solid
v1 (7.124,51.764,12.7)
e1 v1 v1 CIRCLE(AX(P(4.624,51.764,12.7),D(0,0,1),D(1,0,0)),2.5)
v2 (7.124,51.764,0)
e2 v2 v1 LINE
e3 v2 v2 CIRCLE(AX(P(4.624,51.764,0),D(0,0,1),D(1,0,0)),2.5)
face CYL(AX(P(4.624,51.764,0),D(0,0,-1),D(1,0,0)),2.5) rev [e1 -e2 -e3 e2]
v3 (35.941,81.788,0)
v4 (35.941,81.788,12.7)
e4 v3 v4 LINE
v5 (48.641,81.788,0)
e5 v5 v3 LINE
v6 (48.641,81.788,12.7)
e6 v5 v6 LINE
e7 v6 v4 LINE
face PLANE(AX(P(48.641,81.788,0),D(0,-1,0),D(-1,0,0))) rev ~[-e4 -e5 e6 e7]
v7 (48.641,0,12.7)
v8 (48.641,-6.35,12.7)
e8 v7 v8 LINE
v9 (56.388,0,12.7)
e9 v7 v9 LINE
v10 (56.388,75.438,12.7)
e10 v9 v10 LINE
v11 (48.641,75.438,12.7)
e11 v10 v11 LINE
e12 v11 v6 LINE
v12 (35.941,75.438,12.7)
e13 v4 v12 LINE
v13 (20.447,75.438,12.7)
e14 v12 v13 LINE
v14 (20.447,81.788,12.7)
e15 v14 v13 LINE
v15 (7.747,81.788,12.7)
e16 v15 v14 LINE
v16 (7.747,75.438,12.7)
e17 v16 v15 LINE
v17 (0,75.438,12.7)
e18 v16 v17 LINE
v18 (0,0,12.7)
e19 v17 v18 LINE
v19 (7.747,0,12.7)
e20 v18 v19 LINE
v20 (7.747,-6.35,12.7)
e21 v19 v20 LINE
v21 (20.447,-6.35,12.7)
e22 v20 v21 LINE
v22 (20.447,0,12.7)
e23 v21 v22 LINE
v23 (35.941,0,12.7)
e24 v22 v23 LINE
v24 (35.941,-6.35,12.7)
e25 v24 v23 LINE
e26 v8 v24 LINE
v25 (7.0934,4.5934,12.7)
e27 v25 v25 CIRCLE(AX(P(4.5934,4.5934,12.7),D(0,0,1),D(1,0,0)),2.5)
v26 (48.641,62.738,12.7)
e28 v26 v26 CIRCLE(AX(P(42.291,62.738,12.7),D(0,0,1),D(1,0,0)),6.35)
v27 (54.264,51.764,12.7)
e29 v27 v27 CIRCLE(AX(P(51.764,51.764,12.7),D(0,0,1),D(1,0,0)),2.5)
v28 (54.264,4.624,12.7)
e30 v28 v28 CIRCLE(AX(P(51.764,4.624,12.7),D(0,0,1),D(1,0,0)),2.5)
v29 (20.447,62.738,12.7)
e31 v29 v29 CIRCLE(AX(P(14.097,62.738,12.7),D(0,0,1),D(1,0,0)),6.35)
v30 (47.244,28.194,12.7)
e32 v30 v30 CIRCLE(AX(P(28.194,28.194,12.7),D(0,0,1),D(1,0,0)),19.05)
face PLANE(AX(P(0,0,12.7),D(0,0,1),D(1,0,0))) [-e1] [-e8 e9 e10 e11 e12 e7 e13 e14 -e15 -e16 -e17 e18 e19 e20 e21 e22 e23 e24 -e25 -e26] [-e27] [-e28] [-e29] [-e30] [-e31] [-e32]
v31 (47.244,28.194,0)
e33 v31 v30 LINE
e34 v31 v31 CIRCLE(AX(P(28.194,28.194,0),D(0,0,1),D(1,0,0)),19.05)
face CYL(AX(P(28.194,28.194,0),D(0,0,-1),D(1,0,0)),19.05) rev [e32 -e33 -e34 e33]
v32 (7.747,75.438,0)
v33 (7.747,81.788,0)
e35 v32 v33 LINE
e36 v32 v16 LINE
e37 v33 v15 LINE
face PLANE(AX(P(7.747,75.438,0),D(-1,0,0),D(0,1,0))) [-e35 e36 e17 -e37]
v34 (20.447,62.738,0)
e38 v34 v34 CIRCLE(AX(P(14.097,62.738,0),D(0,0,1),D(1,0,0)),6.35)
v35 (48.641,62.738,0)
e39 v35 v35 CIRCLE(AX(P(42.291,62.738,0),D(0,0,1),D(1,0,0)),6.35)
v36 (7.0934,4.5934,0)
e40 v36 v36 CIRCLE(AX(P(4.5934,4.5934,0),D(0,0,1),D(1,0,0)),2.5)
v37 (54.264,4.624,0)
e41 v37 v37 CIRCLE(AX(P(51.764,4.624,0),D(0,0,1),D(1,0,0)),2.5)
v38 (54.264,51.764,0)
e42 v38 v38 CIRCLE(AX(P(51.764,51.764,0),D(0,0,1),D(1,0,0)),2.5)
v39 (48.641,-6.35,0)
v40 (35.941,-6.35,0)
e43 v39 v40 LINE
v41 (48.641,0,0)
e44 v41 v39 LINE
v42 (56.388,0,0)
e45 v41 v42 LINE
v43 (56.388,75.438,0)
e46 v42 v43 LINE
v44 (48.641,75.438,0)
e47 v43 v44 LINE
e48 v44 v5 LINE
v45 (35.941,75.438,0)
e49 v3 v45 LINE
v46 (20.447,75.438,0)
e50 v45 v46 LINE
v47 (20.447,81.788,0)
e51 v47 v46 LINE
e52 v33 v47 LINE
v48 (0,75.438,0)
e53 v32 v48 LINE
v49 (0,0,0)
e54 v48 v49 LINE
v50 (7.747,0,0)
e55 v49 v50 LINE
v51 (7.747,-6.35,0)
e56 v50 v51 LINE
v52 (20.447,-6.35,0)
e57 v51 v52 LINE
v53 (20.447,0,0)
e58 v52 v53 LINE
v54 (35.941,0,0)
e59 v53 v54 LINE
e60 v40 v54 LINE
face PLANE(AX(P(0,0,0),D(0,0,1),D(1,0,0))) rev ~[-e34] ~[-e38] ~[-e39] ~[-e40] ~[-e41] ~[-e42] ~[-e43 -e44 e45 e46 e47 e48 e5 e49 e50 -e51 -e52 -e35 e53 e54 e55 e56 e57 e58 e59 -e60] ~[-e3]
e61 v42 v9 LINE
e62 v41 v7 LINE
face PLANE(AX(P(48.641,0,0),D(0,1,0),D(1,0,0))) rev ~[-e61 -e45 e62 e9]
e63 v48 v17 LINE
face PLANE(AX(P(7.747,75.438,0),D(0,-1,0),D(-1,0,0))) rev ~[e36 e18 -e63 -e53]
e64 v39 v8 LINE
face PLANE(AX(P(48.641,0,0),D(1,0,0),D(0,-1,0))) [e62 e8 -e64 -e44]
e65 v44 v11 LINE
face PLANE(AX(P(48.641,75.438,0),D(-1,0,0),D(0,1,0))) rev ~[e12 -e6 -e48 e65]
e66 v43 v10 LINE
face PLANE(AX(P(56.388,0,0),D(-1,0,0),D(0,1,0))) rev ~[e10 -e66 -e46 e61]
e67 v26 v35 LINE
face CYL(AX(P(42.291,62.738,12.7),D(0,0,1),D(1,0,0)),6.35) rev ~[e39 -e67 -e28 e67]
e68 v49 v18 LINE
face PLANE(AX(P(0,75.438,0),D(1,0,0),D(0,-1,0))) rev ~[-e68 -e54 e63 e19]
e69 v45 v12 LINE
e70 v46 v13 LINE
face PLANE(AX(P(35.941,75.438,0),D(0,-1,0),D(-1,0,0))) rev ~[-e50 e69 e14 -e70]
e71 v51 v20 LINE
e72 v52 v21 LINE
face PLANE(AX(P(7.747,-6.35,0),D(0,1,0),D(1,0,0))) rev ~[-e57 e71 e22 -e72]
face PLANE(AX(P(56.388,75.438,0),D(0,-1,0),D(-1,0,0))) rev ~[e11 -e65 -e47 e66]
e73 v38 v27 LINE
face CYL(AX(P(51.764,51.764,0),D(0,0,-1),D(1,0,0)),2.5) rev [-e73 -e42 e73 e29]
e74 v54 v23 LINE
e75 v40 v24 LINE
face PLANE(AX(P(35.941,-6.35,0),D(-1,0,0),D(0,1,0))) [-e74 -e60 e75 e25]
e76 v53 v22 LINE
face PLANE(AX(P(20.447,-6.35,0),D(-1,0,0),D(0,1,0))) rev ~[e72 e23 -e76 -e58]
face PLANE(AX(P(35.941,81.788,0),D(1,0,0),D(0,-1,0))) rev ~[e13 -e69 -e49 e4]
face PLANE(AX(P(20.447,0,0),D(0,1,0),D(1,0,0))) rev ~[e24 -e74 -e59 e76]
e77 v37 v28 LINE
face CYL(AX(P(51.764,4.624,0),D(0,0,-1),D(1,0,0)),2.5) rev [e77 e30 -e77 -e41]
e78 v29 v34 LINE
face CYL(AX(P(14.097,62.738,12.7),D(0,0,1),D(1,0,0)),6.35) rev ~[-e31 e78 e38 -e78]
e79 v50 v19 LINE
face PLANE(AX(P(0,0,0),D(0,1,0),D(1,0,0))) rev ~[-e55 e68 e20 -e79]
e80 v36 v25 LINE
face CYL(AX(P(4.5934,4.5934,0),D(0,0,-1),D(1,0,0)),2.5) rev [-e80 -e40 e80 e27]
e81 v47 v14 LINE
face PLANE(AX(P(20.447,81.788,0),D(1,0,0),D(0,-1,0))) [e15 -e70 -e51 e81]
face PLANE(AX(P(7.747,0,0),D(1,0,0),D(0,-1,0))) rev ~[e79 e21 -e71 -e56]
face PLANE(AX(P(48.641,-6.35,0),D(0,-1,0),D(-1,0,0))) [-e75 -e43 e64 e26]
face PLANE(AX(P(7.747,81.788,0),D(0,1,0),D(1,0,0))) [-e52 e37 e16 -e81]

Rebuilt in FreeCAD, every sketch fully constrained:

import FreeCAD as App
import Part
import Sketcher

V = App.Vector
Q = App.Units.Quantity


def add_polygon(sketch, points):
    """Adds a closed chain of lines whose ends are joined by coincident constraints."""
    first, n = sketch.GeometryCount, len(points)
    for a, b in zip(points, points[1:] + points[:1]):
        sketch.addGeometry(Part.LineSegment(App.Vector(*a, 0), App.Vector(*b, 0)), False)
    for i in range(n):
        sketch.addConstraint(Sketcher.Constraint("Coincident", first + i, 2, first + (i + 1) % n, 1))

doc = App.newDocument("Part")
body = doc.addObject("PartDesign::Body", "Body")

# Sketch on XY plane
sketch1 = doc.addObject("Sketcher::SketchObject", "Sketch")
body.addObject(sketch1)
sketch1.AttachmentSupport = (doc.XY_Plane, [""])
sketch1.MapMode = "FlatFace"
add_polygon(sketch1, [(48.641, 0), (56.388, 0), (56.388, 75.438), (48.641, 75.438), (48.641, 81.788), (35.941, 81.788), (35.941, 75.438), (20.447, 75.438), (20.447, 81.788), (7.747, 81.788), (7.747, 75.438), (0, 75.438), (0, 0), (7.747, 0), (7.747, -6.35), (20.447, -6.35), (20.447, 0), (35.941, 0), (35.941, -6.35), (48.641, -6.35)])  # lines 0-19
sketch1.addGeometry(Part.Circle(V(4.5934, 4.5934, 0), V(0, 0, 1), 2.5), False)  # 20
sketch1.addGeometry(Part.Circle(V(51.764, 4.624, 0), V(0, 0, 1), 2.5), False)  # 21
sketch1.addGeometry(Part.Circle(V(28.194, 28.194, 0), V(0, 0, 1), 19.05), False)  # 22
sketch1.addGeometry(Part.Circle(V(4.624, 51.764, 0), V(0, 0, 1), 2.5), False)  # 23
sketch1.addGeometry(Part.Circle(V(51.764, 51.764, 0), V(0, 0, 1), 2.5), False)  # 24
sketch1.addConstraint(Sketcher.Constraint("Horizontal", 0))
sketch1.addConstraint(Sketcher.Constraint("Vertical", 1))
sketch1.addConstraint(Sketcher.Constraint("Horizontal", 2))
sketch1.addConstraint(Sketcher.Constraint("Vertical", 3))
sketch1.addConstraint(Sketcher.Constraint("Horizontal", 4))
sketch1.addConstraint(Sketcher.Constraint("Vertical", 5))
sketch1.addConstraint(Sketcher.Constraint("Horizontal", 6))
sketch1.addConstraint(Sketcher.Constraint("Vertical", 7))
sketch1.addConstraint(Sketcher.Constraint("Horizontal", 8))
sketch1.addConstraint(Sketcher.Constraint("Vertical", 9))
sketch1.addConstraint(Sketcher.Constraint("Horizontal", 10))
sketch1.addConstraint(Sketcher.Constraint("Vertical", 11))
sketch1.addConstraint(Sketcher.Constraint("Horizontal", 12))
sketch1.addConstraint(Sketcher.Constraint("Vertical", 13))
sketch1.addConstraint(Sketcher.Constraint("Horizontal", 14))
sketch1.addConstraint(Sketcher.Constraint("Vertical", 15))
sketch1.addConstraint(Sketcher.Constraint("Horizontal", 16))
sketch1.addConstraint(Sketcher.Constraint("Vertical", 17))
sketch1.addConstraint(Sketcher.Constraint("Horizontal", 18))
sketch1.addConstraint(Sketcher.Constraint("Vertical", 19))
sketch1.addConstraint(Sketcher.Constraint("Coincident", 11, 2, -1, 1))
sketch1.addConstraint(Sketcher.Constraint("Equal", 20, 21))
sketch1.addConstraint(Sketcher.Constraint("Equal", 21, 23))
sketch1.addConstraint(Sketcher.Constraint("Equal", 23, 24))
sketch1.addConstraint(Sketcher.Constraint("PointOnObject", 0, 2, -1))
sketch1.addConstraint(Sketcher.Constraint("PointOnObject", 15, 2, -1))
sketch1.addConstraint(Sketcher.Constraint("Horizontal", 23, 3, 24, 3))
sketch1.addConstraint(Sketcher.Constraint("Horizontal", 2, 2, 5, 2))
sketch1.addConstraint(Sketcher.Constraint("Horizontal", 4, 2, 7, 2))
sketch1.addConstraint(Sketcher.Constraint("Horizontal", 6, 2, 9, 2))
sketch1.addConstraint(Sketcher.Constraint("Horizontal", 14, 2, 17, 2))
sketch1.addConstraint(Sketcher.Constraint("Vertical", 21, 3, 24, 3))
sketch1.addConstraint(Sketcher.Constraint("Vertical", 9, 2, 12, 2))
sketch1.addConstraint(Sketcher.Constraint("Vertical", 7, 2, 14, 2))
sketch1.addConstraint(Sketcher.Constraint("Vertical", 5, 2, 16, 2))
sketch1.addConstraint(Sketcher.Constraint("Vertical", 3, 2, 18, 2))
sketch1.addConstraint(Sketcher.Constraint("Equal", 4, 8))
sketch1.addConstraint(Sketcher.Constraint("Equal", 2, 10))
sketch1.addConstraint(Sketcher.Constraint("Equal", 9, 13))
sketch1.addConstraint(Sketcher.Constraint("Diameter", 22, Q("1.5 in")))
sketch1.addConstraint(Sketcher.Constraint("DistanceX", 4, 2, 4, 1, Q("0.5 in")))
sketch1.addConstraint(Sketcher.Constraint("DistanceY", 1, 1, 1, 2, Q("2.97 in")))
sketch1.addConstraint(Sketcher.Constraint("Diameter", 20, Q("5 mm")))
sketch1.addConstraint(Sketcher.Constraint("DistanceX", -1, 1, 0, 2, Q("2.22 in")))
sketch1.addConstraint(Sketcher.Constraint("DistanceX", 6, 2, 6, 1, Q("0.61 in")))
sketch1.addConstraint(Sketcher.Constraint("DistanceY", 3, 1, 3, 2, Q("0.25 in")))
sketch1.addConstraint(Sketcher.Constraint("DistanceX", 23, 3, 21, 3, Q("1.8559 in")))
sketch1.addConstraint(Sketcher.Constraint("DistanceY", 21, 3, 23, 3, Q("1.8559 in")))
sketch1.addConstraint(Sketcher.Constraint("DistanceX", -1, 1, 22, 3, Q("1.11 in")))
sketch1.addConstraint(Sketcher.Constraint("DistanceY", -1, 1, 22, 3, Q("1.11 in")))
sketch1.addConstraint(Sketcher.Constraint("DistanceX", 20, 3, 21, 3, Q("1.8571 in")))
sketch1.addConstraint(Sketcher.Constraint("DistanceY", 20, 3, 21, 3, Q("0.0012 in")))
sketch1.addConstraint(Sketcher.Constraint("DistanceX", -1, 1, 20, 3, Q("4.5934 mm")))
sketch1.addConstraint(Sketcher.Constraint("DistanceY", -1, 1, 20, 3, Q("4.5934 mm")))
pad1 = doc.addObject("PartDesign::Pad", "Pad")
body.addObject(pad1)
pad1.Profile = sketch1
pad1.Length = Q("0.5 in")

# Sketch on XY plane
sketch2 = doc.addObject("Sketcher::SketchObject", "Sketch001")
body.addObject(sketch2)
sketch2.AttachmentSupport = (doc.XY_Plane, [""])
sketch2.MapMode = "FlatFace"
sketch2.AttachmentOffset = App.Placement(V(0, 0, 0.5 * 25.4), App.Rotation())
sketch2.addGeometry(Part.Circle(V(14.097, 62.738, 0), V(0, 0, 1), 6.35), False)
sketch2.addGeometry(Part.Circle(V(42.291, 62.738, 0), V(0, 0, 1), 6.35), False)
sketch2.addConstraint(Sketcher.Constraint("Equal", 0, 1))
sketch2.addConstraint(Sketcher.Constraint("Horizontal", 0, 3, 1, 3))
sketch2.addConstraint(Sketcher.Constraint("Diameter", 0, Q("0.5 in")))
sketch2.addConstraint(Sketcher.Constraint("DistanceY", -1, 1, 0, 3, Q("2.47 in")))
sketch2.addConstraint(Sketcher.Constraint("DistanceX", 0, 3, 1, 3, Q("1.11 in")))
sketch2.addConstraint(Sketcher.Constraint("DistanceX", -1, 1, 0, 3, Q("0.555 in")))
pocket1 = doc.addObject("PartDesign::Pocket", "Pocket")
body.addObject(pocket1)
pocket1.Profile = sketch2
pocket1.Type = "ThroughAll"

doc.recompute()
